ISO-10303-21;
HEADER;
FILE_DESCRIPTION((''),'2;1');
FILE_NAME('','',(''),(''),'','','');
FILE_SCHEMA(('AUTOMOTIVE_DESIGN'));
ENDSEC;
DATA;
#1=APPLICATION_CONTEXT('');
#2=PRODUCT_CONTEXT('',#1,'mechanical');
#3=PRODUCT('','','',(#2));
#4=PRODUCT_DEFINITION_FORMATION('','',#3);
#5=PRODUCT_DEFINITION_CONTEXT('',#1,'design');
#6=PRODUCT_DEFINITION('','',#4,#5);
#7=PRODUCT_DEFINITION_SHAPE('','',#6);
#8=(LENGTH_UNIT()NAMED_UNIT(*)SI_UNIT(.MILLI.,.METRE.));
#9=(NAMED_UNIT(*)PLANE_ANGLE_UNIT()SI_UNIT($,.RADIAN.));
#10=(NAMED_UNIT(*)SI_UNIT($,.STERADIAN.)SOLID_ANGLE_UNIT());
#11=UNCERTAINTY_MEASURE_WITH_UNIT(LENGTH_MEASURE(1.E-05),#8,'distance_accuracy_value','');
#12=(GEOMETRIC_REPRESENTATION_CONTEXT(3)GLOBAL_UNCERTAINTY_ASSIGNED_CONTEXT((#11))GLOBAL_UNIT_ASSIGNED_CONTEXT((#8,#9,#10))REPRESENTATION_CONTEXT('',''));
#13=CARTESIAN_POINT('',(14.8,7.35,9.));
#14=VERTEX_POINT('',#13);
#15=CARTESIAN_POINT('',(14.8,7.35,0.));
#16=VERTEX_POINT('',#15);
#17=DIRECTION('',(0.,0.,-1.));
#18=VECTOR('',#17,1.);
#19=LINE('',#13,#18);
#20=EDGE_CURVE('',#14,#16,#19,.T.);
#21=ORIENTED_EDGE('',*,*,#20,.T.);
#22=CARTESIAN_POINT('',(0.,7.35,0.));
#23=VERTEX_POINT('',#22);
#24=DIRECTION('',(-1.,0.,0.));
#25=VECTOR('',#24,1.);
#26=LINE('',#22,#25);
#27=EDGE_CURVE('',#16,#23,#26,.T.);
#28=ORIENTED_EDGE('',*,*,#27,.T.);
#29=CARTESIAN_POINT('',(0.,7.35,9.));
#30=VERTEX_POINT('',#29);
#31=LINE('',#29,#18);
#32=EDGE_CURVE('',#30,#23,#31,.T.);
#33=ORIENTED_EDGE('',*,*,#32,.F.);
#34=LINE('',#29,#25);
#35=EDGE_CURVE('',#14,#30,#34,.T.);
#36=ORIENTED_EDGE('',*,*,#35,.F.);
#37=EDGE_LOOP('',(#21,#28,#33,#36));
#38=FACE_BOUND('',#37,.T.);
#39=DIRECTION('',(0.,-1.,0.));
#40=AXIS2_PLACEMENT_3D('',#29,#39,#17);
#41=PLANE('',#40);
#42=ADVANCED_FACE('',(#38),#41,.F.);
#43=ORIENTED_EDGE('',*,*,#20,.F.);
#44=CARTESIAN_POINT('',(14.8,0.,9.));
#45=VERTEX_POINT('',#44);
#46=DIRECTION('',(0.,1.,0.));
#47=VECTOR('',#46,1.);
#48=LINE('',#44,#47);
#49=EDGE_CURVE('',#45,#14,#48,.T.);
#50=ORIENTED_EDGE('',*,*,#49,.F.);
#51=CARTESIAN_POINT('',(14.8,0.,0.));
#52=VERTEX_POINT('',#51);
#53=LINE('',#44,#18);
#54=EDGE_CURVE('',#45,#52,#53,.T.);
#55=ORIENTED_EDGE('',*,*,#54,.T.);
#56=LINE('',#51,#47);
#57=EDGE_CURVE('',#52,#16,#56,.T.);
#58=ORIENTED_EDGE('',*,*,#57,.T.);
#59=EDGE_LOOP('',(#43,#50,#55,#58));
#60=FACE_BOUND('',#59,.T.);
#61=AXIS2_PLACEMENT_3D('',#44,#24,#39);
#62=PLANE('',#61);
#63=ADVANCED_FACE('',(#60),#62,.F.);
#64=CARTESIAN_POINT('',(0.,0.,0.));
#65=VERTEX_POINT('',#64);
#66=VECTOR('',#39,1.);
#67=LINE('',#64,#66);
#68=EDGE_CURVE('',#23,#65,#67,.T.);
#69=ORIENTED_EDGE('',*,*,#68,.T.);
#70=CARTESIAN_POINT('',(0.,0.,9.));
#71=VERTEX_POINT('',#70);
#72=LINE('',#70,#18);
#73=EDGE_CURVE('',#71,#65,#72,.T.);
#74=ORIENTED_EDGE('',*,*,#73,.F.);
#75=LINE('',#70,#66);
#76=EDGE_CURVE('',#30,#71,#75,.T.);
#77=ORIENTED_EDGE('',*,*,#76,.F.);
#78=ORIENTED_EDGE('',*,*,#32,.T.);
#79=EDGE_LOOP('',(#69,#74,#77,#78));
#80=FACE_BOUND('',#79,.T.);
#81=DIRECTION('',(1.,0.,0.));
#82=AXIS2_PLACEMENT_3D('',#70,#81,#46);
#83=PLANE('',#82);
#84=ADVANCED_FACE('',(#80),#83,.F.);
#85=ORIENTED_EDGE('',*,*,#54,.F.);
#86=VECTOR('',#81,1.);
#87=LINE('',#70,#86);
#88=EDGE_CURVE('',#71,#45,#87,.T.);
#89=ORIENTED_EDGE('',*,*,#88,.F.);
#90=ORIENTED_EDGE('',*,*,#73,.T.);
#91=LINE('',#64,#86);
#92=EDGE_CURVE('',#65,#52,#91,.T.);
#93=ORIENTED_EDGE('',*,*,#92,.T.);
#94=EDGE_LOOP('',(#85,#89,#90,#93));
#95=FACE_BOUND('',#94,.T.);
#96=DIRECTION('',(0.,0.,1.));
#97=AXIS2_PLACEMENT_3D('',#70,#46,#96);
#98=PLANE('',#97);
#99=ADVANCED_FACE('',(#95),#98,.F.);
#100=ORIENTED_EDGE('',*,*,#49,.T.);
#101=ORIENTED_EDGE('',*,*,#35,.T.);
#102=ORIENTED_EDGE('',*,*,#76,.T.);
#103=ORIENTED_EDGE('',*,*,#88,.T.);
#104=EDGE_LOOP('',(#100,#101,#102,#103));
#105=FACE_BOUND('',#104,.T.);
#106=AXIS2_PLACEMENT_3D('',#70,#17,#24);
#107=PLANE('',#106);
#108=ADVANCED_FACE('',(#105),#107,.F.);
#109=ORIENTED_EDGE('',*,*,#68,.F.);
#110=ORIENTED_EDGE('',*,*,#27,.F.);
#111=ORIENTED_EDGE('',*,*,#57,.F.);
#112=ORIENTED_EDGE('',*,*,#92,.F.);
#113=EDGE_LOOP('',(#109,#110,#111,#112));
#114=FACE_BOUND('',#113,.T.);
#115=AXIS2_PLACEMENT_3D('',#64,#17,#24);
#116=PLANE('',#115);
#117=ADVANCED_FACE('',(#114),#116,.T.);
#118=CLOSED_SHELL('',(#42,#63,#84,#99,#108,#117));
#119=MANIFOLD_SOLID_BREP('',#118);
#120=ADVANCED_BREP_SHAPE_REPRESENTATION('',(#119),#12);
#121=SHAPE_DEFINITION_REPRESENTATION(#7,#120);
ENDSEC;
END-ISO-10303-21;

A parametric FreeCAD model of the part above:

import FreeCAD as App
import Part
import Sketcher
from FreeCAD import Vector
Q = App.Units.Quantity


def add_polygon(sketch, points):
    """Adds a closed chain of lines whose ends are joined by coincident constraints."""
    first, n = sketch.GeometryCount, len(points)
    for a, b in zip(points, points[1:] + points[:1]):
        sketch.addGeometry(Part.LineSegment(App.Vector(*a, 0), App.Vector(*b, 0)), False)
    for i in range(n):
        sketch.addConstraint(Sketcher.Constraint("Coincident", first + i, 2, first + (i + 1) % n, 1))

doc = App.newDocument("Part")
params = doc.addObject("Spreadsheet::Sheet", "Params")
for row, (alias, value) in enumerate([
    ("sketch1_width", "14.8 mm"),
    ("sketch1_height", "7.35 mm"),
    ("pad1_length", "9 mm"),
], start=1):
    params.set(f"A{row}", alias)
    params.set(f"B{row}", "=" + value)
    params.setAlias(f"B{row}", alias)

body = doc.addObject("PartDesign::Body", "Body")

sketch1 = body.newObject("Sketcher::SketchObject", "Sketch")
sketch1.AttachmentSupport = (doc.getObject("XY_Plane"), [""])
sketch1.MapMode = "FlatFace"
add_polygon(sketch1, [(0, 7), (0, 0), (15, 0), (15, 7)])
sketch1.addConstraint([
    Sketcher.Constraint("Vertical", 0),
    Sketcher.Constraint("Horizontal", 1),
    Sketcher.Constraint("Vertical", 2),
    Sketcher.Constraint("Horizontal", 3),
    Sketcher.Constraint("Coincident", 0, 2, -1, 1),
    Sketcher.Constraint("DistanceX", 1, 1, 1, 2, Q("14.8 mm")),
    Sketcher.Constraint("DistanceY", 0, 2, 0, 1, Q("7.35 mm")),
])
sketch1.setExpression("Constraints[9]", "Params.sketch1_width")
sketch1.setExpression("Constraints[10]", "Params.sketch1_height")
pad1 = body.newObject("PartDesign::Pad", "Pad")
pad1.Profile = sketch1
pad1.setExpression("Length", "Params.pad1_length")

doc.recompute()
